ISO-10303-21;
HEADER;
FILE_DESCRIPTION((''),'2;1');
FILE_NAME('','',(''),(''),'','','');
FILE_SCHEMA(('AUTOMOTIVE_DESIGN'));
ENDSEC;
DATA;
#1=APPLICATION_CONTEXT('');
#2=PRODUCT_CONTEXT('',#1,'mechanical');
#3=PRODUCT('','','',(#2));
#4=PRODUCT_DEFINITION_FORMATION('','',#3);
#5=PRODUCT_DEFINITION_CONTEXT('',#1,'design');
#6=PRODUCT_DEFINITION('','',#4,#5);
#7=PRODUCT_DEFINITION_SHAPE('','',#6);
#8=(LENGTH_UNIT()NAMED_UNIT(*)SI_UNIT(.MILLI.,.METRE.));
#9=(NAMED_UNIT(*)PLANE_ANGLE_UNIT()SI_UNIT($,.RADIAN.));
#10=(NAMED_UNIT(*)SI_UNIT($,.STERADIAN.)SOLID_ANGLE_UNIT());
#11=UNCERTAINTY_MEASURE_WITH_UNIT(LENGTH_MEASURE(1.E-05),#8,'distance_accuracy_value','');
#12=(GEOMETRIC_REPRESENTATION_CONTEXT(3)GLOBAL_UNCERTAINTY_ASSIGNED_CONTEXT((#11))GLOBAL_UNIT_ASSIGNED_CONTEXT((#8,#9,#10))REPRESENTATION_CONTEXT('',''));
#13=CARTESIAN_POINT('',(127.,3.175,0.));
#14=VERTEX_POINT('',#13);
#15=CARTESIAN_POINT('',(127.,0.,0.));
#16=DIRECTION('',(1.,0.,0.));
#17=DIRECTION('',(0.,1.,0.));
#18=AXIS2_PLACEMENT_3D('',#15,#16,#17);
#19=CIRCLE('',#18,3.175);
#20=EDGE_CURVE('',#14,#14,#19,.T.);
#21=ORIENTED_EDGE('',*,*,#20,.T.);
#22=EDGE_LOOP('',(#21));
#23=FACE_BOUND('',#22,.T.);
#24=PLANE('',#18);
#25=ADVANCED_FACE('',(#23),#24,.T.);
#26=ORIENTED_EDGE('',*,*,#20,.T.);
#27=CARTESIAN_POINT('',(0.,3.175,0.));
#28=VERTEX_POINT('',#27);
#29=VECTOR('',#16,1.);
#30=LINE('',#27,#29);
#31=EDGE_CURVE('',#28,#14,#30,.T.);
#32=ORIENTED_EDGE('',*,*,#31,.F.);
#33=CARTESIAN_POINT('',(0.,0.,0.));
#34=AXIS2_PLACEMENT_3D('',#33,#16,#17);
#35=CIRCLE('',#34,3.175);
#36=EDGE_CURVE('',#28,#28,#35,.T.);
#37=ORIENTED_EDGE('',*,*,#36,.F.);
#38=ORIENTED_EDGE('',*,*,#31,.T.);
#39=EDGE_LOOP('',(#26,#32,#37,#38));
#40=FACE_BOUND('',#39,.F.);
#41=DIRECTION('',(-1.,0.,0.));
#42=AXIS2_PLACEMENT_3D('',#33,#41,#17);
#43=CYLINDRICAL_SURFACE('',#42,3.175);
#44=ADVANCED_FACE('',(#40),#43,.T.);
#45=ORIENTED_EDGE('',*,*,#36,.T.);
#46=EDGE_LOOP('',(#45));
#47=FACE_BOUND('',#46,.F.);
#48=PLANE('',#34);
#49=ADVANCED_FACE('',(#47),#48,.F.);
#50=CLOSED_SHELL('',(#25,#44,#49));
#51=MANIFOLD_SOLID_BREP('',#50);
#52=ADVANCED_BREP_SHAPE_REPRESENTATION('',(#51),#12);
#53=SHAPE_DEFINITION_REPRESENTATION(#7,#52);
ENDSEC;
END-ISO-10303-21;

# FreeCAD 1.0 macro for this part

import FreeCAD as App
import Part
import Sketcher
from FreeCAD import Vector
Q = App.Units.Quantity

doc = App.newDocument("Part")
body = doc.addObject("PartDesign::Body", "Body")

# Sketch on YZ plane
sketch1 = body.newObject("Sketcher::SketchObject", "Sketch")
sketch1.AttachmentSupport = (doc.getObject("YZ_Plane"), [""])
sketch1.MapMode = "FlatFace"
sketch1.addGeometry(Part.Circle(Vector(0, 0, 0), Vector(0, 0, 1), 3.2), False)
sketch1.addConstraint(Sketcher.Constraint("Coincident", 0, 3, -1, 1))
sketch1.addConstraint(Sketcher.Constraint("Diameter", 0, Q("0.25 in")))
pad1 = body.newObject("PartDesign::Pad", "Pad")
pad1.Profile = sketch1
pad1.Length = Q("5 in")

doc.recompute()
